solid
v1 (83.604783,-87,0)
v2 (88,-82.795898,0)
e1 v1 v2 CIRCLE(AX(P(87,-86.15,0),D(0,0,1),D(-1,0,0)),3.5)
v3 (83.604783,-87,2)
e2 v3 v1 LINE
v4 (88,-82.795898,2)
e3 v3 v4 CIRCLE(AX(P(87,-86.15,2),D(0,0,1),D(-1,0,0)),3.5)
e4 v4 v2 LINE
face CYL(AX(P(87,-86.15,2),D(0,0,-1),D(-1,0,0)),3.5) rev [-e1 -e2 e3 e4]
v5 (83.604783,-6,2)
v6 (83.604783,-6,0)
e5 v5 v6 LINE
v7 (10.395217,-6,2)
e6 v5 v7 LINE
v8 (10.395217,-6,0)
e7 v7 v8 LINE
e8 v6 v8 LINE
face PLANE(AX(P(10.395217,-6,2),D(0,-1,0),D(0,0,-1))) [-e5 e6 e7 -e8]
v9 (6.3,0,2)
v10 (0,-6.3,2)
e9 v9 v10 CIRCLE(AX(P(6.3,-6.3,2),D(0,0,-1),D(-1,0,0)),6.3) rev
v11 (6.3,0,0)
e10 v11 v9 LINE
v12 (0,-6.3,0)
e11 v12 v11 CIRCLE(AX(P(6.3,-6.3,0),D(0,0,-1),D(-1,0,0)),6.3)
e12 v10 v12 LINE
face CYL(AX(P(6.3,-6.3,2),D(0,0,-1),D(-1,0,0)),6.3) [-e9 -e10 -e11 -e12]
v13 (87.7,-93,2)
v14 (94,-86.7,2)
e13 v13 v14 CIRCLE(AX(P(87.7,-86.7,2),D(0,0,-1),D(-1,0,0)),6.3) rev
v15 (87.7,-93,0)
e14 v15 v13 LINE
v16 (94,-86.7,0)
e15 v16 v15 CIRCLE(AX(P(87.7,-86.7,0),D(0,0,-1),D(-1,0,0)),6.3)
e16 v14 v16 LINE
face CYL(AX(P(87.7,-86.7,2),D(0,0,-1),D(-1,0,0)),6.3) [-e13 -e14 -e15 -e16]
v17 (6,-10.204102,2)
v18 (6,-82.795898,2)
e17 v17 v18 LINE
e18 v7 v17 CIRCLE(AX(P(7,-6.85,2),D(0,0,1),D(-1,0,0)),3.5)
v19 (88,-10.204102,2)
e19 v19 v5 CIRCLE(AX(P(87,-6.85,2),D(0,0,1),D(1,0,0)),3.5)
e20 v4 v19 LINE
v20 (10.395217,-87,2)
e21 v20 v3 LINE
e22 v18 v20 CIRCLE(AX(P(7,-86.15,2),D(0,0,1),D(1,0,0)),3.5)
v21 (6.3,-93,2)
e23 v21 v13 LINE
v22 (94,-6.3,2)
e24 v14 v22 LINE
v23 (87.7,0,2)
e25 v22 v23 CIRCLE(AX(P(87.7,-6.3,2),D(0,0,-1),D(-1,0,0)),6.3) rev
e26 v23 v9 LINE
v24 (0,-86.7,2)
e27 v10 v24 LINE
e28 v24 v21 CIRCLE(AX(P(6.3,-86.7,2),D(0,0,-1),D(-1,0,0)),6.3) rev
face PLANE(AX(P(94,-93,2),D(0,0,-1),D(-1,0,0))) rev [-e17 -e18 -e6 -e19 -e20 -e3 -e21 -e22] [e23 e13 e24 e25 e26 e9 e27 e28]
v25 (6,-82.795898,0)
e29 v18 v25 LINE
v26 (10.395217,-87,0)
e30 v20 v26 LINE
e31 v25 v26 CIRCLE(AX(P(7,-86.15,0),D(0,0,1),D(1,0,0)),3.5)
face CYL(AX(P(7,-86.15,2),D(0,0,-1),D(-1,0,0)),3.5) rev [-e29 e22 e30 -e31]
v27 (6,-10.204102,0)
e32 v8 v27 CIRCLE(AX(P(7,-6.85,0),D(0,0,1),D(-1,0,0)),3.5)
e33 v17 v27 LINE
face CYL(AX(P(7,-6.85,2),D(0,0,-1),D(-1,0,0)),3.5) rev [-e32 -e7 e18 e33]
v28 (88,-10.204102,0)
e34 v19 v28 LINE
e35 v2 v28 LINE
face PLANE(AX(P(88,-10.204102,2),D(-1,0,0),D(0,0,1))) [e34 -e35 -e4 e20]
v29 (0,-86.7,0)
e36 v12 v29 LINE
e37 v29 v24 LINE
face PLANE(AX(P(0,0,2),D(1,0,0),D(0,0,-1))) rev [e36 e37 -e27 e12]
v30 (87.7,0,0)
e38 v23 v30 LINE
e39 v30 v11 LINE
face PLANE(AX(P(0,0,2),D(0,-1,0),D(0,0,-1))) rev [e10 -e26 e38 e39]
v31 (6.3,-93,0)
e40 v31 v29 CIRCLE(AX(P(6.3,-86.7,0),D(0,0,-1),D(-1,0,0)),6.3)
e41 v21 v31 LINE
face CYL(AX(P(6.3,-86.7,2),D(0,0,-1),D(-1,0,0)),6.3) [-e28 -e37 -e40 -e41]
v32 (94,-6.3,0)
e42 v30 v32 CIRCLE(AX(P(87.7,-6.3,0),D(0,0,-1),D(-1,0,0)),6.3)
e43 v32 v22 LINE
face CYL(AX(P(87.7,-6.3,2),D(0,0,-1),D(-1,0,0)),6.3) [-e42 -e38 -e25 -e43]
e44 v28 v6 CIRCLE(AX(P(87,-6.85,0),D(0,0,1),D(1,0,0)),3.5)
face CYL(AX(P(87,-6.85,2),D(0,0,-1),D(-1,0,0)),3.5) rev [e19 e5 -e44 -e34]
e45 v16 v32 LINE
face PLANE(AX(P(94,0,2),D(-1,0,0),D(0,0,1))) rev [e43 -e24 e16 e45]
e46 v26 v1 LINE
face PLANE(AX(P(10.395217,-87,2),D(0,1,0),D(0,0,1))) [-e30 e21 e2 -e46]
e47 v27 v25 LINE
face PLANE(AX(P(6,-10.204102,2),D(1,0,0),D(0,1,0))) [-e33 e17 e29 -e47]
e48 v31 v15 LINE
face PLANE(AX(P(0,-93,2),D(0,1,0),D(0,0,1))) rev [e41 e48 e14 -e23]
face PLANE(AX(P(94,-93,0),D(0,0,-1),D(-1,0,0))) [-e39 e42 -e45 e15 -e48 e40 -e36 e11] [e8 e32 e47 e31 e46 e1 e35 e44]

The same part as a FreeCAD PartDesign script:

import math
import FreeCAD as App
import Part
import Sketcher
from FreeCAD import Vector
Q = App.Units.Quantity


def edges_at(feature, points):
    """Names of the edges that pass closest to the given points."""
    edges = feature.Shape.Edges
    near = lambda p: min(range(len(edges)), key=lambda i: edges[i].distToShape(Part.Vertex(*p))[0])
    return sorted({f"Edge{near(p) + 1}" for p in points})

doc = App.newDocument("Part")
params = doc.addObject("Spreadsheet::Sheet", "Params")
for row, (alias, value) in enumerate([
    ("sketch1_radius", "3.5 mm"),
    ("sketch1_width", "94 mm"),
    ("sketch1_height", "93 mm"),
    ("pad1_length", "2 mm"),
    ("fillet_radius", "6.3 mm"),
], start=1):
    params.set(f"A{row}", alias)
    params.set(f"B{row}", "=" + value)
    params.setAlias(f"B{row}", alias)

body = doc.addObject("PartDesign::Body", "Body")

# Sketch on XY plane
sketch1 = body.newObject("Sketcher::SketchObject", "Sketch")
sketch1.AttachmentSupport = (doc.getObject("XY_Plane"), [""])
sketch1.MapMode = "FlatFace"
sketch1.addGeometry([
    Part.LineSegment(Vector(0, 0, 0), Vector(0, -93, 0)),  # 0
    Part.LineSegment(Vector(0, -93, 0), Vector(94, -93, 0)),  # 1
    Part.LineSegment(Vector(94, -93, 0), Vector(94, 0, 0)),  # 2
    Part.LineSegment(Vector(94, 0, 0), Vector(0, 0, 0)),  # 3
    Part.ArcOfCircle(Part.Circle(Vector(87, -6.8, 0), Vector(0, 0, 1), 3.5), math.radians(-73), math.radians(166)),  # 4
    Part.LineSegment(Vector(88, -10.2, 0), Vector(88, -82.8, 0)),  # 5
    Part.ArcOfCircle(Part.Circle(Vector(87, -86.2, 0), Vector(0, 0, 1), 3.5), math.radians(-166), math.radians(73)),  # 6
    Part.LineSegment(Vector(83.6, -87, 0), Vector(10.4, -87, 0)),  # 7
    Part.ArcOfCircle(Part.Circle(Vector(7, -86.2, 0), Vector(0, 0, 1), 3.5), math.radians(107), math.radians(346)),  # 8
    Part.LineSegment(Vector(6, -82.8, 0), Vector(6, -10.2, 0)),  # 9
    Part.ArcOfCircle(Part.Circle(Vector(7, -6.8, 0), Vector(0, 0, 1), 3.5), math.radians(14), math.radians(253)),  # 10
    Part.LineSegment(Vector(10.4, -6, 0), Vector(83.6, -6, 0)),  # 11
], False)
sketch1.addConstraint([
    Sketcher.Constraint("Coincident", 0, 2, 1, 1),
    Sketcher.Constraint("Coincident", 1, 2, 2, 1),
    Sketcher.Constraint("Coincident", 2, 2, 3, 1),
    Sketcher.Constraint("Coincident", 3, 2, 0, 1),
    Sketcher.Constraint("Coincident", 4, 1, 5, 1),
    Sketcher.Constraint("Coincident", 5, 2, 6, 2),
    Sketcher.Constraint("Coincident", 6, 1, 7, 1),
    Sketcher.Constraint("Coincident", 7, 2, 8, 2),
    Sketcher.Constraint("Coincident", 8, 1, 9, 1),
    Sketcher.Constraint("Coincident", 9, 2, 10, 2),
    Sketcher.Constraint("Coincident", 10, 1, 11, 1),
    Sketcher.Constraint("Coincident", 11, 2, 4, 2),
    Sketcher.Constraint("Vertical", 0),
    Sketcher.Constraint("Horizontal", 1),
    Sketcher.Constraint("Vertical", 2),
    Sketcher.Constraint("Horizontal", 3),
    Sketcher.Constraint("Vertical", 5),
    Sketcher.Constraint("Horizontal", 7),
    Sketcher.Constraint("Vertical", 9),
    Sketcher.Constraint("Horizontal", 11),
    Sketcher.Constraint("Coincident", 3, 2, -1, 1),
    Sketcher.Constraint("Equal", 4, 6),
    Sketcher.Constraint("Equal", 6, 8),
    Sketcher.Constraint("Equal", 8, 10),
    Sketcher.Constraint("Horizontal", 6, 3, 8, 3),
    Sketcher.Constraint("Horizontal", 4, 3, 10, 3),
    Sketcher.Constraint("Horizontal", 5, 2, 8, 1),
    Sketcher.Constraint("Horizontal", 4, 1, 9, 2),
    Sketcher.Constraint("Vertical", 4, 3, 6, 3),
    Sketcher.Constraint("Vertical", 7, 2, 10, 1),
    Sketcher.Constraint("Radius", 4, Q("3.5 mm")),
    Sketcher.Constraint("DistanceX", 1, 1, 1, 2, Q("94 mm")),
    Sketcher.Constraint("DistanceY", 0, 2, 0, 1, Q("93 mm")),
    Sketcher.Constraint("DistanceX", -1, 1, 4, 3, Q("87 mm")),
    Sketcher.Constraint("DistanceX", -1, 1, 8, 3, Q("7 mm")),
    Sketcher.Constraint("DistanceX", -1, 1, 4, 1, Q("88 mm")),
    Sketcher.Constraint("DistanceY", 6, 1, -1, 1, Q("87 mm")),
    Sketcher.Constraint("DistanceY", 10, 1, -1, 1, Q("6 mm")),
    Sketcher.Constraint("DistanceY", 6, 3, 4, 3, Q("79.3 mm")),
])
sketch1.setExpression("Constraints[30]", "Params.sketch1_radius")
sketch1.setExpression("Constraints[31]", "Params.sketch1_width")
sketch1.setExpression("Constraints[32]", "Params.sketch1_height")
pad1 = body.newObject("PartDesign::Pad", "Pad")
pad1.Profile = sketch1
pad1.setExpression("Length", "Params.pad1_length")
doc.recompute()

fillet = body.newObject("PartDesign::Fillet", "Fillet")
fillet.Base = (pad1, edges_at(pad1, [
    (0, -93, 1),
    (0, 0, 1),
    (94, 0, 1),
    (94, -93, 1),
]))
fillet.setExpression("Radius", "Params.fillet_radius")

doc.recompute()
